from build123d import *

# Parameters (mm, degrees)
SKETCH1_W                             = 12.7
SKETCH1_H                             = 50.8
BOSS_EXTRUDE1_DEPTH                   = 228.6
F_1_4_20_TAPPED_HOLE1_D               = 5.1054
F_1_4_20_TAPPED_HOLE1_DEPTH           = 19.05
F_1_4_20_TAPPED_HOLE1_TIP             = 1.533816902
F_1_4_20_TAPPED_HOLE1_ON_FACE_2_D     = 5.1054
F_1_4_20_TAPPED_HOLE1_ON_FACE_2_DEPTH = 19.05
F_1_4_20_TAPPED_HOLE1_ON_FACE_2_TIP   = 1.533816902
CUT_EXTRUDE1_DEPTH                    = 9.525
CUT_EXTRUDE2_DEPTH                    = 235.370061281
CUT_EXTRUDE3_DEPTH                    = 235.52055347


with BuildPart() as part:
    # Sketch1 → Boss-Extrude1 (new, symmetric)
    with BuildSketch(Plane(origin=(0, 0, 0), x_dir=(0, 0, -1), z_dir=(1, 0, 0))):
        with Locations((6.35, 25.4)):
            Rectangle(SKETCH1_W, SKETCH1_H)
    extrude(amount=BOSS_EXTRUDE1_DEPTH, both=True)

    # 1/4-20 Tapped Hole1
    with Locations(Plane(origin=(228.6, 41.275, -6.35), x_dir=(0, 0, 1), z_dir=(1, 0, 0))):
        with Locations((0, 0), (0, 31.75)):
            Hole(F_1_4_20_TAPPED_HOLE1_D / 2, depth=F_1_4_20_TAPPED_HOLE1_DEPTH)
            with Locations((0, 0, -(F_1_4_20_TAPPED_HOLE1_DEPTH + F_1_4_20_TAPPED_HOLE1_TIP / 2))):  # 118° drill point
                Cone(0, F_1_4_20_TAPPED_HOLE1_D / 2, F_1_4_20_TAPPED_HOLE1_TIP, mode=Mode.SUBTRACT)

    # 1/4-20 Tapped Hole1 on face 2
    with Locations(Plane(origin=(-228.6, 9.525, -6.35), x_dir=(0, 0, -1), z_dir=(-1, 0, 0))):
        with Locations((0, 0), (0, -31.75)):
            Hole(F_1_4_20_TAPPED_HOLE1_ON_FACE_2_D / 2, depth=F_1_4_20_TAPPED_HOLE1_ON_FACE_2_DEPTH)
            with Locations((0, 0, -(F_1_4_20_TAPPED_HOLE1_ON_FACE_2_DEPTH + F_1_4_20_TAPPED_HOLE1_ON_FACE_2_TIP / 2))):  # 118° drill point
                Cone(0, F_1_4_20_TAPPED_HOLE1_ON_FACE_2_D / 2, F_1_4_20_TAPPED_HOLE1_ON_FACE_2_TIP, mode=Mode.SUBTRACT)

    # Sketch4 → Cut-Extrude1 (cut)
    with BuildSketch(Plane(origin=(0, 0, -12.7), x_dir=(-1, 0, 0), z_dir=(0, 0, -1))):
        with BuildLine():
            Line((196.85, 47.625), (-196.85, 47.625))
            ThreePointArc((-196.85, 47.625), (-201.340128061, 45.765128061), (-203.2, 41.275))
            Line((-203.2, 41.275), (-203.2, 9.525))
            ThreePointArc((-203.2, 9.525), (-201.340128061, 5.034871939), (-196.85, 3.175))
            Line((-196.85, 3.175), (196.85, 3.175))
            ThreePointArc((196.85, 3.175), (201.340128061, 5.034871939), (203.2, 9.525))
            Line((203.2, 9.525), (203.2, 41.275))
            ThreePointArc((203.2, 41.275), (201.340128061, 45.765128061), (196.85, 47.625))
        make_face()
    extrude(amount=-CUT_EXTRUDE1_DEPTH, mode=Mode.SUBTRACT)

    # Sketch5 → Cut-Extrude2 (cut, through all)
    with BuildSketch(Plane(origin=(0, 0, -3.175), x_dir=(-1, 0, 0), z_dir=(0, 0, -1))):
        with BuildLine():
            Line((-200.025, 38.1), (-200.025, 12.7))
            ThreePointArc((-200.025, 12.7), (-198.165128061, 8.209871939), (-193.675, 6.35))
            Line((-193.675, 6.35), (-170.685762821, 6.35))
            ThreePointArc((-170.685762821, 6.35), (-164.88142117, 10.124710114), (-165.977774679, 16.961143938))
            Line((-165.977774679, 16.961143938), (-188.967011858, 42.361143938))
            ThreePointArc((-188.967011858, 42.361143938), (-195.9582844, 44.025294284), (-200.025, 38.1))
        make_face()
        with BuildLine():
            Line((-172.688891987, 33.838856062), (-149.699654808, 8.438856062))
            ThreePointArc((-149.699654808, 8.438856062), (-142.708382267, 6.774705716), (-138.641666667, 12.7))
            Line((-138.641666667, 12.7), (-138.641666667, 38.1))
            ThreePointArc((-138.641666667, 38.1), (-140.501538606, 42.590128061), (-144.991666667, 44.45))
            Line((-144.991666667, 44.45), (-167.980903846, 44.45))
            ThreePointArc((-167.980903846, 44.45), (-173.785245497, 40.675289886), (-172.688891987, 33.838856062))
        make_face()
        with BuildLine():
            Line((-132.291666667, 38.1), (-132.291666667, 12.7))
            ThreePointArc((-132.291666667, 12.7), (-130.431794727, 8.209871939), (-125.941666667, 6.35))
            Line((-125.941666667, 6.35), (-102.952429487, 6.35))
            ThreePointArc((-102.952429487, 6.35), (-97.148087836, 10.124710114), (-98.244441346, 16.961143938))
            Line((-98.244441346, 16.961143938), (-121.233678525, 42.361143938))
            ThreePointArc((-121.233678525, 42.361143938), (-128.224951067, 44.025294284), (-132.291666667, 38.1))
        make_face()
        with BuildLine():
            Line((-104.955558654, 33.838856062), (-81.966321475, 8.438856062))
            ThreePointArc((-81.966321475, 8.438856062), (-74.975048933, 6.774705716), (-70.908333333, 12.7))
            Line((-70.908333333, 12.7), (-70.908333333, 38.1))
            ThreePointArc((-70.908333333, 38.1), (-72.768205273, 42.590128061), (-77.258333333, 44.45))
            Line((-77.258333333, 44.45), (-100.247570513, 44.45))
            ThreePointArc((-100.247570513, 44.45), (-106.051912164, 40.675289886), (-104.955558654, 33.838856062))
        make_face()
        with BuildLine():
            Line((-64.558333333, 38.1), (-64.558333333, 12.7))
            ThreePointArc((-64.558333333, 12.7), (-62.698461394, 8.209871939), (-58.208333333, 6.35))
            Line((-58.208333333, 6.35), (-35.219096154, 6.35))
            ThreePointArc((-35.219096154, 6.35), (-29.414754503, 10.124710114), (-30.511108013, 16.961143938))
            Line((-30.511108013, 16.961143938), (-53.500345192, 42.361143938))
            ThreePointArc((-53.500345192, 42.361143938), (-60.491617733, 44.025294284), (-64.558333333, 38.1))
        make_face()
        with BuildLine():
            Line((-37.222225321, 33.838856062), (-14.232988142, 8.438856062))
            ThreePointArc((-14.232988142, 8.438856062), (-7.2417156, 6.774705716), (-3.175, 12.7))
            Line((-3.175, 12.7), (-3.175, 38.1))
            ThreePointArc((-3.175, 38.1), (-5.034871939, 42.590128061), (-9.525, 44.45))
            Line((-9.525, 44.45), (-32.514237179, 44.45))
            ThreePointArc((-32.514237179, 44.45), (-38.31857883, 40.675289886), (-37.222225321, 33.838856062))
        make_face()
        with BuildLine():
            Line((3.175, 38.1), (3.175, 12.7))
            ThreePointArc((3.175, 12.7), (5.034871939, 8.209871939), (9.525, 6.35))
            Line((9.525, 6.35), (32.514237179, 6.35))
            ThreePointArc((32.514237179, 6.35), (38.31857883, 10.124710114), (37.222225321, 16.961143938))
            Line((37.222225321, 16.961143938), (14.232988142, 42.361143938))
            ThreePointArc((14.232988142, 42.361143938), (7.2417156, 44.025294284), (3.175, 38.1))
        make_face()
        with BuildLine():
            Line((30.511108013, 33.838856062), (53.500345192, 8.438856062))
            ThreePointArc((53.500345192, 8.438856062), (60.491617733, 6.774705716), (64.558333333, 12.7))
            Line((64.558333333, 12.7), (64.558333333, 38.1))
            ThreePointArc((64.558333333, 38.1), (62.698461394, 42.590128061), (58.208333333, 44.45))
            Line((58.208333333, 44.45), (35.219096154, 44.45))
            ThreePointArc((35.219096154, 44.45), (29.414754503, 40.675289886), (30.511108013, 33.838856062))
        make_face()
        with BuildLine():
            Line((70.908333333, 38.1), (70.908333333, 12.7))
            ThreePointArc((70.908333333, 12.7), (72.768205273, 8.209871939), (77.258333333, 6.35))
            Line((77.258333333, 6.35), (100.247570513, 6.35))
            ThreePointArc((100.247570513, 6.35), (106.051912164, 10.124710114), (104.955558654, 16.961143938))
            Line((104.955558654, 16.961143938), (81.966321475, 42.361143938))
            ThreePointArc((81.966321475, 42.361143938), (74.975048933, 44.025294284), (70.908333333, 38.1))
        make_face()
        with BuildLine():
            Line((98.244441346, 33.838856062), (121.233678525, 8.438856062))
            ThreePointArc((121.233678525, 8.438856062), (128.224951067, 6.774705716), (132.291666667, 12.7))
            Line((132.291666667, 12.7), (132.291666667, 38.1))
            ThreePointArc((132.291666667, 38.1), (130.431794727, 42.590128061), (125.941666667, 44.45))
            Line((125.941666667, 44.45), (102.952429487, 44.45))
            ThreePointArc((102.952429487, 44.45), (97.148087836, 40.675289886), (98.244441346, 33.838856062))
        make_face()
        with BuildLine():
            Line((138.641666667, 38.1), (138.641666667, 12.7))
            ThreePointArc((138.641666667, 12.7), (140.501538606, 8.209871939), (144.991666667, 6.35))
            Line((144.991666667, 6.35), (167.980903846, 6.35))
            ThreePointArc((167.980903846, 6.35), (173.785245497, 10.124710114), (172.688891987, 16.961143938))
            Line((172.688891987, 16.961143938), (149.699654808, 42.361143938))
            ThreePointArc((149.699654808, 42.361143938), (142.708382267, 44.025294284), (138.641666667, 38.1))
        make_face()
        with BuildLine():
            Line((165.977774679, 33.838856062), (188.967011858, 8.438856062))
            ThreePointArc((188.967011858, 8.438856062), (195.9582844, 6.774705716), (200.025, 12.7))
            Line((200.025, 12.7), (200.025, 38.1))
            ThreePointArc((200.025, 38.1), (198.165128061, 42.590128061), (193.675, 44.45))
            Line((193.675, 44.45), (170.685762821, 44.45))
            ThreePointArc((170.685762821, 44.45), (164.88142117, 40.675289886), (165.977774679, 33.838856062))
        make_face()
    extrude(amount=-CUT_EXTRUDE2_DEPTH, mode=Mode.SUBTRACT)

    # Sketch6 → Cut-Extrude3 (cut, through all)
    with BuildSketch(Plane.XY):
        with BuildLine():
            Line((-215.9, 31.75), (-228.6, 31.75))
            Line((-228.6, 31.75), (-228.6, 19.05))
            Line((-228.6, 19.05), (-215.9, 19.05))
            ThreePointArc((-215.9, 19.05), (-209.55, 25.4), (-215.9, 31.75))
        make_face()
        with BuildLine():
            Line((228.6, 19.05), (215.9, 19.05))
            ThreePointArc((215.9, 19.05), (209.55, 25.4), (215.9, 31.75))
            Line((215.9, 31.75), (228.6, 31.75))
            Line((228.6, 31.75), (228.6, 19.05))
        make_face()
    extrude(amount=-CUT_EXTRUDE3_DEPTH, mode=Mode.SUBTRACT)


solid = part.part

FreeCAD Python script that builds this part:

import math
import FreeCAD as App
import Part
import Sketcher

V = App.Vector
Q = App.Units.Quantity


def add_polygon(sketch, points):
    """Adds a closed chain of lines whose ends are joined by coincident constraints."""
    first, n = sketch.GeometryCount, len(points)
    for a, b in zip(points, points[1:] + points[:1]):
        sketch.addGeometry(Part.LineSegment(App.Vector(*a, 0), App.Vector(*b, 0)), False)
    for i in range(n):
        sketch.addConstraint(Sketcher.Constraint("Coincident", first + i, 2, first + (i + 1) % n, 1))

doc = App.newDocument("Part")
params = doc.addObject("Spreadsheet::Sheet", "Params")
for row, (alias, value) in enumerate([
    ("sketch1_width", "2 in"),
    ("sketch1_height", "0.5 in"),
    ("pad1_length", "18 in"),
    ("sketch2_diameter", "0.201 in"),
    ("hole_diameter", "0.201 in"),
    ("hole_depth", "0.75 in"),
    ("sketch3_diameter", "0.201 in"),
    ("hole2_diameter", "0.201 in"),
    ("hole2_depth", "0.75 in"),
    ("sketch4_radius", "0.25 in"),
    ("sketch4_width", "15.5 in"),
    ("sketch4_height", "1.25 in"),
    ("pocket1_length", "0.375 in"),
    ("sketch5_height", "1 in"),
    ("sketch5_radius", "0.25 in"),
    ("sketch6_radius", "0.25 in"),
], start=1):
    params.set(f"A{row}", alias)
    params.set(f"B{row}", "=" + value)
    params.setAlias(f"B{row}", alias)

body = doc.addObject("PartDesign::Body", "Body")

sketch1 = body.newObject("Sketcher::SketchObject", "Sketch")
sketch1.AttachmentSupport = (doc.getObject("YZ_Plane"), [""])
sketch1.MapMode = "FlatFace"
add_polygon(sketch1, [(50.8, 0), (0, 0), (0, -12.7), (50.8, -12.7)])
sketch1.addConstraint([
    Sketcher.Constraint("Horizontal", 0),
    Sketcher.Constraint("Vertical", 1),
    Sketcher.Constraint("Horizontal", 2),
    Sketcher.Constraint("Vertical", 3),
    Sketcher.Constraint("Coincident", 0, 2, -1, 1),
    Sketcher.Constraint("DistanceX", 0, 2, 0, 1, Q("2 in")),
    Sketcher.Constraint("DistanceY", 1, 2, 1, 1, Q("0.5 in")),
])
sketch1.setExpression("Constraints[9]", "Params.sketch1_width")
sketch1.setExpression("Constraints[10]", "Params.sketch1_height")
pad1 = body.newObject("PartDesign::Pad", "Pad")
pad1.Profile = sketch1
pad1.setExpression("Length", "Params.pad1_length")
pad1.Midplane = True

sketch2 = body.newObject("Sketcher::SketchObject", "Sketch001")
sketch2.AttachmentSupport = (doc.getObject("YZ_Plane"), [""])
sketch2.MapMode = "FlatFace"
sketch2.AttachmentOffset = App.Placement(V(0, 0, 9 * 25.4), App.Rotation())
sketch2.addGeometry([
    Part.Circle(V(41.275, -6.35, 0), V(0, 0, 1), 2.5527),
    Part.Circle(V(9.525, -6.35, 0), V(0, 0, 1), 2.5527),
], False)
sketch2.addConstraint([
    Sketcher.Constraint("Equal", 0, 1),
    Sketcher.Constraint("Horizontal", 0, 3, 1, 3),
    Sketcher.Constraint("Diameter", 0, Q("0.201 in")),
    Sketcher.Constraint("DistanceY", 0, 3, -1, 1, Q("0.25 in")),
    Sketcher.Constraint("DistanceX", 1, 3, 0, 3, Q("1.25 in")),
    Sketcher.Constraint("DistanceX", -1, 1, 0, 3, Q("1.625 in")),
])
sketch2.setExpression("Constraints[2]", "Params.sketch2_diameter")
doc.recompute()
hole = body.newObject("PartDesign::Hole", "Hole")
hole.Profile = sketch2
hole.ThreadType = "None"
hole.setExpression("Diameter", "Params.hole_diameter")
hole.DepthType = "Dimension"
hole.setExpression("Depth", "Params.hole_depth")
hole.DrillPoint = "Angled"
hole.DrillPointAngle = 118

sketch3 = body.newObject("Sketcher::SketchObject", "Sketch002")
sketch3.AttachmentSupport = (doc.getObject("YZ_Plane"), [""])
sketch3.MapMode = "FlatFace"
sketch3.AttachmentOffset = App.Placement(V(0, 0, -9 * 25.4), App.Rotation())
sketch3.addGeometry([
    Part.Circle(V(9.525, -6.35, 0), V(0, 0, 1), 2.5527),
    Part.Circle(V(41.275, -6.35, 0), V(0, 0, 1), 2.5527),
], False)
sketch3.addConstraint([
    Sketcher.Constraint("Equal", 0, 1),
    Sketcher.Constraint("Horizontal", 0, 3, 1, 3),
    Sketcher.Constraint("Diameter", 0, Q("0.201 in")),
    Sketcher.Constraint("DistanceY", 0, 3, -1, 1, Q("0.25 in")),
    Sketcher.Constraint("DistanceX", 0, 3, 1, 3, Q("1.25 in")),
    Sketcher.Constraint("DistanceX", -1, 1, 0, 3, Q("0.375 in")),
])
sketch3.setExpression("Constraints[2]", "Params.sketch3_diameter")
doc.recompute()
hole2 = body.newObject("PartDesign::Hole", "Hole001")
hole2.Profile = sketch3
hole2.ThreadType = "None"
hole2.setExpression("Diameter", "Params.hole2_diameter")
hole2.DepthType = "Dimension"
hole2.setExpression("Depth", "Params.hole2_depth")
hole2.DrillPoint = "Angled"
hole2.DrillPointAngle = 118
hole2.Reversed = True

sketch4 = body.newObject("Sketcher::SketchObject", "Sketch003")
sketch4.AttachmentSupport = (doc.getObject("XY_Plane"), [""])
sketch4.MapMode = "FlatFace"
sketch4.AttachmentOffset = App.Placement(V(0, 0, -0.5 * 25.4), App.Rotation())
sketch4.addGeometry([
    Part.LineSegment(V(-196.85, 47.625, 0), V(196.85, 47.625, 0)),
    Part.ArcOfCircle(Part.Circle(V(196.85, 41.275, 0), V(0, 0, 1), 6.35), math.radians(0), math.radians(90)),
    Part.LineSegment(V(203.2, 41.275, 0), V(203.2, 9.525, 0)),
    Part.ArcOfCircle(Part.Circle(V(196.85, 9.525, 0), V(0, 0, 1), 6.35), math.radians(-90), math.radians(0)),
    Part.LineSegment(V(196.85, 3.175, 0), V(-196.85, 3.175, 0)),
    Part.ArcOfCircle(Part.Circle(V(-196.85, 9.525, 0), V(0, 0, 1), 6.35), math.radians(180), math.radians(270)),
    Part.LineSegment(V(-203.2, 9.525, 0), V(-203.2, 41.275, 0)),
    Part.ArcOfCircle(Part.Circle(V(-196.85, 41.275, 0), V(0, 0, 1), 6.35), math.radians(90), math.radians(180)),
], False)
sketch4.addConstraint([
    Sketcher.Constraint("Tangent", 0, 2, 1, 2),
    Sketcher.Constraint("Tangent", 1, 1, 2, 1),
    Sketcher.Constraint("Tangent", 2, 2, 3, 2),
    Sketcher.Constraint("Tangent", 3, 1, 4, 1),
    Sketcher.Constraint("Tangent", 4, 2, 5, 2),
    Sketcher.Constraint("Tangent", 5, 1, 6, 1),
    Sketcher.Constraint("Tangent", 6, 2, 7, 2),
    Sketcher.Constraint("Tangent", 7, 1, 0, 1),
    Sketcher.Constraint("Horizontal", 0),
    Sketcher.Constraint("Vertical", 2),
    Sketcher.Constraint("Horizontal", 4),
    Sketcher.Constraint("Vertical", 6),
    Sketcher.Constraint("Equal", 1, 3),
    Sketcher.Constraint("Equal", 3, 5),
    Sketcher.Constraint("Equal", 5, 7),
    Sketcher.Constraint("Radius", 1, Q("0.25 in")),
    Sketcher.Constraint("DistanceX", 0, 1, 0, 2, Q("15.5 in")),
    Sketcher.Constraint("DistanceX", -1, 1, 1, 1, Q("8 in")),
    Sketcher.Constraint("DistanceY", 2, 2, 2, 1, Q("1.25 in")),
    Sketcher.Constraint("DistanceY", -1, 1, 1, 3, Q("1.625 in")),
])
sketch4.setExpression("Constraints[15]", "Params.sketch4_radius")
sketch4.setExpression("Constraints[16]", "Params.sketch4_width")
sketch4.setExpression("Constraints[18]", "Params.sketch4_height")
pocket1 = body.newObject("PartDesign::Pocket", "Pocket")
pocket1.Profile = sketch4
pocket1.setExpression("Length", "Params.pocket1_length")
pocket1.Reversed = True

sketch5 = body.newObject("Sketcher::SketchObject", "Sketch004")
sketch5.AttachmentSupport = (doc.getObject("XY_Plane"), [""])
sketch5.MapMode = "FlatFace"
sketch5.AttachmentOffset = App.Placement(V(0, 0, -0.125 * 25.4), App.Rotation())
sketch5.addGeometry([
    Part.LineSegment(V(200.025, 38.1, 0), V(200.025, 12.7, 0)),
    Part.ArcOfCircle(Part.Circle(V(193.675, 12.7, 0), V(0, 0, 1), 6.35), math.radians(-90), math.radians(0)),
    Part.LineSegment(V(193.675, 6.35, 0), V(170.685763, 6.35, 0)),
    Part.ArcOfCircle(Part.Circle(V(170.685763, 12.7, 0), V(0, 0, 1), 6.35), math.radians(137.852131), math.radians(270)),
    Part.LineSegment(V(165.977775, 16.961144, 0), V(188.967012, 42.361144, 0)),
    Part.ArcOfCircle(Part.Circle(V(193.675, 38.1, 0), V(0, 0, 1), 6.35), math.radians(0), math.radians(137.852131)),
    Part.LineSegment(V(172.688892, 33.838856, 0), V(149.699655, 8.438856, 0)),
    Part.ArcOfCircle(Part.Circle(V(144.991667, 12.7, 0), V(0, 0, 1), 6.35), math.radians(180), math.radians(317.852131)),
    Part.LineSegment(V(138.641667, 12.7, 0), V(138.641667, 38.1, 0)),
    Part.ArcOfCircle(Part.Circle(V(144.991667, 38.1, 0), V(0, 0, 1), 6.35), math.radians(90), math.radians(180)),
    Part.LineSegment(V(144.991667, 44.45, 0), V(167.980904, 44.45, 0)),
    Part.ArcOfCircle(Part.Circle(V(167.980904, 38.1, 0), V(0, 0, 1), 6.35), math.radians(-42.147869), math.radians(90)),
    Part.LineSegment(V(132.291667, 38.1, 0), V(132.291667, 12.7, 0)),
    Part.ArcOfCircle(Part.Circle(V(125.941667, 12.7, 0), V(0, 0, 1), 6.35), math.radians(-90), math.radians(0)),
    Part.LineSegment(V(125.941667, 6.35, 0), V(102.952429, 6.35, 0)),
    Part.ArcOfCircle(Part.Circle(V(102.952429, 12.7, 0), V(0, 0, 1), 6.35), math.radians(137.852131), math.radians(270)),
    Part.LineSegment(V(98.244441, 16.961144, 0), V(121.233679, 42.361144, 0)),
    Part.ArcOfCircle(Part.Circle(V(125.941667, 38.1, 0), V(0, 0, 1), 6.35), math.radians(0), math.radians(137.852131)),
    Part.LineSegment(V(104.955559, 33.838856, 0), V(81.966321, 8.438856, 0)),
    Part.ArcOfCircle(Part.Circle(V(77.258333, 12.7, 0), V(0, 0, 1), 6.35), math.radians(180), math.radians(317.852131)),
    Part.LineSegment(V(70.908333, 12.7, 0), V(70.908333, 38.1, 0)),
    Part.ArcOfCircle(Part.Circle(V(77.258333, 38.1, 0), V(0, 0, 1), 6.35), math.radians(90), math.radians(180)),
    Part.LineSegment(V(77.258333, 44.45, 0), V(100.247571, 44.45, 0)),
    Part.ArcOfCircle(Part.Circle(V(100.247571, 38.1, 0), V(0, 0, 1), 6.35), math.radians(-42.147869), math.radians(90)),
    Part.LineSegment(V(64.558333, 38.1, 0), V(64.558333, 12.7, 0)),
    Part.ArcOfCircle(Part.Circle(V(58.208333, 12.7, 0), V(0, 0, 1), 6.35), math.radians(-90), math.radians(0)),
    Part.LineSegment(V(58.208333, 6.35, 0), V(35.219096, 6.35, 0)),
    Part.ArcOfCircle(Part.Circle(V(35.219096, 12.7, 0), V(0, 0, 1), 6.35), math.radians(137.852131), math.radians(270)),
    Part.LineSegment(V(30.511108, 16.961144, 0), V(53.500345, 42.361144, 0)),
    Part.ArcOfCircle(Part.Circle(V(58.208333, 38.1, 0), V(0, 0, 1), 6.35), math.radians(0), math.radians(137.852131)),
    Part.LineSegment(V(37.222225, 33.838856, 0), V(14.232988, 8.438856, 0)),
    Part.ArcOfCircle(Part.Circle(V(9.525, 12.7, 0), V(0, 0, 1), 6.35), math.radians(180), math.radians(317.852131)),
    Part.LineSegment(V(3.175, 12.7, 0), V(3.175, 38.1, 0)),
    Part.ArcOfCircle(Part.Circle(V(9.525, 38.1, 0), V(0, 0, 1), 6.35), math.radians(90), math.radians(180)),
    Part.LineSegment(V(9.525, 44.45, 0), V(32.514237, 44.45, 0)),
    Part.ArcOfCircle(Part.Circle(V(32.514237, 38.1, 0), V(0, 0, 1), 6.35), math.radians(-42.147869), math.radians(90)),
    Part.LineSegment(V(-3.175, 38.1, 0), V(-3.175, 12.7, 0)),
    Part.ArcOfCircle(Part.Circle(V(-9.525, 12.7, 0), V(0, 0, 1), 6.35), math.radians(-90), math.radians(0)),
    Part.LineSegment(V(-9.525, 6.35, 0), V(-32.514237, 6.35, 0)),
    Part.ArcOfCircle(Part.Circle(V(-32.514237, 12.7, 0), V(0, 0, 1), 6.35), math.radians(137.852131), math.radians(270)),
    Part.LineSegment(V(-37.222225, 16.961144, 0), V(-14.232988, 42.361144, 0)),
    Part.ArcOfCircle(Part.Circle(V(-9.525, 38.1, 0), V(0, 0, 1), 6.35), math.radians(0), math.radians(137.852131)),
    Part.LineSegment(V(-30.511108, 33.838856, 0), V(-53.500345, 8.438856, 0)),
    Part.ArcOfCircle(Part.Circle(V(-58.208333, 12.7, 0), V(0, 0, 1), 6.35), math.radians(180), math.radians(317.852131)),
    Part.LineSegment(V(-64.558333, 12.7, 0), V(-64.558333, 38.1, 0)),
    Part.ArcOfCircle(Part.Circle(V(-58.208333, 38.1, 0), V(0, 0, 1), 6.35), math.radians(90), math.radians(180)),
    Part.LineSegment(V(-58.208333, 44.45, 0), V(-35.219096, 44.45, 0)),
    Part.ArcOfCircle(Part.Circle(V(-35.219096, 38.1, 0), V(0, 0, 1), 6.35), math.radians(-42.147869), math.radians(90)),
    Part.LineSegment(V(-70.908333, 38.1, 0), V(-70.908333, 12.7, 0)),
    Part.ArcOfCircle(Part.Circle(V(-77.258333, 12.7, 0), V(0, 0, 1), 6.35), math.radians(-90), math.radians(0)),
    Part.LineSegment(V(-77.258333, 6.35, 0), V(-100.247571, 6.35, 0)),
    Part.ArcOfCircle(Part.Circle(V(-100.247571, 12.7, 0), V(0, 0, 1), 6.35), math.radians(137.852131), math.radians(270)),
    Part.LineSegment(V(-104.955559, 16.961144, 0), V(-81.966321, 42.361144, 0)),
    Part.ArcOfCircle(Part.Circle(V(-77.258333, 38.1, 0), V(0, 0, 1), 6.35), math.radians(0), math.radians(137.852131)),
    Part.LineSegment(V(-98.244441, 33.838856, 0), V(-121.233679, 8.438856, 0)),
    Part.ArcOfCircle(Part.Circle(V(-125.941667, 12.7, 0), V(0, 0, 1), 6.35), math.radians(180), math.radians(317.852131)),
    Part.LineSegment(V(-132.291667, 12.7, 0), V(-132.291667, 38.1, 0)),
    Part.ArcOfCircle(Part.Circle(V(-125.941667, 38.1, 0), V(0, 0, 1), 6.35), math.radians(90), math.radians(180)),
    Part.LineSegment(V(-125.941667, 44.45, 0), V(-102.952429, 44.45, 0)),
    Part.ArcOfCircle(Part.Circle(V(-102.952429, 38.1, 0), V(0, 0, 1), 6.35), math.radians(-42.147869), math.radians(90)),
    Part.LineSegment(V(-138.641667, 38.1, 0), V(-138.641667, 12.7, 0)),
    Part.ArcOfCircle(Part.Circle(V(-144.991667, 12.7, 0), V(0, 0, 1), 6.35), math.radians(-90), math.radians(0)),
    Part.LineSegment(V(-144.991667, 6.35, 0), V(-167.980904, 6.35, 0)),
    Part.ArcOfCircle(Part.Circle(V(-167.980904, 12.7, 0), V(0, 0, 1), 6.35), math.radians(137.852131), math.radians(270)),
    Part.LineSegment(V(-172.688892, 16.961144, 0), V(-149.699655, 42.361144, 0)),
    Part.ArcOfCircle(Part.Circle(V(-144.991667, 38.1, 0), V(0, 0, 1), 6.35), math.radians(0), math.radians(137.852131)),
    Part.LineSegment(V(-165.977775, 33.838856, 0), V(-188.967012, 8.438856, 0)),
    Part.ArcOfCircle(Part.Circle(V(-193.675, 12.7, 0), V(0, 0, 1), 6.35), math.radians(180), math.radians(317.852131)),
    Part.LineSegment(V(-200.025, 12.7, 0), V(-200.025, 38.1, 0)),
    Part.ArcOfCircle(Part.Circle(V(-193.675, 38.1, 0), V(0, 0, 1), 6.35), math.radians(90), math.radians(180)),
    Part.LineSegment(V(-193.675, 44.45, 0), V(-170.685763, 44.45, 0)),
    Part.ArcOfCircle(Part.Circle(V(-170.685763, 38.1, 0), V(0, 0, 1), 6.35), math.radians(-42.147869), math.radians(90)),
], False)
sketch5.addConstraint([
    Sketcher.Constraint("Tangent", 0, 2, 1, 2),
    Sketcher.Constraint("Tangent", 1, 1, 2, 1),
    Sketcher.Constraint("Tangent", 2, 2, 3, 2),
    Sketcher.Constraint("Tangent", 3, 1, 4, 1),
    Sketcher.Constraint("Tangent", 4, 2, 5, 2),
    Sketcher.Constraint("Tangent", 5, 1, 0, 1),
    Sketcher.Constraint("Tangent", 6, 2, 7, 2),
    Sketcher.Constraint("Tangent", 7, 1, 8, 1),
    Sketcher.Constraint("Tangent", 8, 2, 9, 2),
    Sketcher.Constraint("Tangent", 9, 1, 10, 1),
    Sketcher.Constraint("Tangent", 10, 2, 11, 2),
    Sketcher.Constraint("Tangent", 11, 1, 6, 1),
    Sketcher.Constraint("Tangent", 12, 2, 13, 2),
    Sketcher.Constraint("Tangent", 13, 1, 14, 1),
    Sketcher.Constraint("Tangent", 14, 2, 15, 2),
    Sketcher.Constraint("Tangent", 15, 1, 16, 1),
    Sketcher.Constraint("Tangent", 16, 2, 17, 2),
    Sketcher.Constraint("Tangent", 17, 1, 12, 1),
    Sketcher.Constraint("Tangent", 18, 2, 19, 2),
    Sketcher.Constraint("Tangent", 19, 1, 20, 1),
    Sketcher.Constraint("Tangent", 20, 2, 21, 2),
    Sketcher.Constraint("Tangent", 21, 1, 22, 1),
    Sketcher.Constraint("Tangent", 22, 2, 23, 2),
    Sketcher.Constraint("Tangent", 23, 1, 18, 1),
    Sketcher.Constraint("Tangent", 24, 2, 25, 2),
    Sketcher.Constraint("Tangent", 25, 1, 26, 1),
    Sketcher.Constraint("Tangent", 26, 2, 27, 2),
    Sketcher.Constraint("Tangent", 27, 1, 28, 1),
    Sketcher.Constraint("Tangent", 28, 2, 29, 2),
    Sketcher.Constraint("Tangent", 29, 1, 24, 1),
    Sketcher.Constraint("Tangent", 30, 2, 31, 2),
    Sketcher.Constraint("Tangent", 31, 1, 32, 1),
    Sketcher.Constraint("Tangent", 32, 2, 33, 2),
    Sketcher.Constraint("Tangent", 33, 1, 34, 1),
    Sketcher.Constraint("Tangent", 34, 2, 35, 2),
    Sketcher.Constraint("Tangent", 35, 1, 30, 1),
    Sketcher.Constraint("Tangent", 36, 2, 37, 2),
    Sketcher.Constraint("Tangent", 37, 1, 38, 1),
    Sketcher.Constraint("Tangent", 38, 2, 39, 2),
    Sketcher.Constraint("Tangent", 39, 1, 40, 1),
    Sketcher.Constraint("Tangent", 40, 2, 41, 2),
    Sketcher.Constraint("Tangent", 41, 1, 36, 1),
    Sketcher.Constraint("Tangent", 42, 2, 43, 2),
    Sketcher.Constraint("Tangent", 43, 1, 44, 1),
    Sketcher.Constraint("Tangent", 44, 2, 45, 2),
    Sketcher.Constraint("Tangent", 45, 1, 46, 1),
    Sketcher.Constraint("Tangent", 46, 2, 47, 2),
    Sketcher.Constraint("Tangent", 47, 1, 42, 1),
    Sketcher.Constraint("Tangent", 48, 2, 49, 2),
    Sketcher.Constraint("Tangent", 49, 1, 50, 1),
    Sketcher.Constraint("Tangent", 50, 2, 51, 2),
    Sketcher.Constraint("Tangent", 51, 1, 52, 1),
    Sketcher.Constraint("Tangent", 52, 2, 53, 2),
    Sketcher.Constraint("Tangent", 53, 1, 48, 1),
    Sketcher.Constraint("Tangent", 54, 2, 55, 2),
    Sketcher.Constraint("Tangent", 55, 1, 56, 1),
    Sketcher.Constraint("Tangent", 56, 2, 57, 2),
    Sketcher.Constraint("Tangent", 57, 1, 58, 1),
    Sketcher.Constraint("Tangent", 58, 2, 59, 2),
    Sketcher.Constraint("Tangent", 59, 1, 54, 1),
    Sketcher.Constraint("Tangent", 60, 2, 61, 2),
    Sketcher.Constraint("Tangent", 61, 1, 62, 1),
    Sketcher.Constraint("Tangent", 62, 2, 63, 2),
    Sketcher.Constraint("Tangent", 63, 1, 64, 1),
    Sketcher.Constraint("Tangent", 64, 2, 65, 2),
    Sketcher.Constraint("Tangent", 65, 1, 60, 1),
    Sketcher.Constraint("Tangent", 66, 2, 67, 2),
    Sketcher.Constraint("Tangent", 67, 1, 68, 1),
    Sketcher.Constraint("Tangent", 68, 2, 69, 2),
    Sketcher.Constraint("Tangent", 69, 1, 70, 1),
    Sketcher.Constraint("Tangent", 70, 2, 71, 2),
    Sketcher.Constraint("Tangent", 71, 1, 66, 1),
    Sketcher.Constraint("Vertical", 0),
    Sketcher.Constraint("Horizontal", 2),
    Sketcher.Constraint("Vertical", 8),
    Sketcher.Constraint("Horizontal", 10),
    Sketcher.Constraint("Vertical", 12),
    Sketcher.Constraint("Horizontal", 14),
    Sketcher.Constraint("Vertical", 20),
    Sketcher.Constraint("Horizontal", 22),
    Sketcher.Constraint("Vertical", 24),
    Sketcher.Constraint("Horizontal", 26),
    Sketcher.Constraint("Vertical", 32),
    Sketcher.Constraint("Horizontal", 34),
    Sketcher.Constraint("Vertical", 36),
    Sketcher.Constraint("Horizontal", 38),
    Sketcher.Constraint("Vertical", 44),
    Sketcher.Constraint("Horizontal", 46),
    Sketcher.Constraint("Vertical", 48),
    Sketcher.Constraint("Horizontal", 50),
    Sketcher.Constraint("Vertical", 56),
    Sketcher.Constraint("Horizontal", 58),
    Sketcher.Constraint("Vertical", 60),
    Sketcher.Constraint("Horizontal", 62),
    Sketcher.Constraint("Vertical", 68),
    Sketcher.Constraint("Horizontal", 70),
    Sketcher.Constraint("Equal", 1, 3),
    Sketcher.Constraint("Equal", 3, 5),
    Sketcher.Constraint("Equal", 5, 7),
    Sketcher.Constraint("Equal", 7, 9),
    Sketcher.Constraint("Equal", 9, 11),
    Sketcher.Constraint("Equal", 11, 13),
    Sketcher.Constraint("Equal", 13, 15),
    Sketcher.Constraint("Equal", 15, 17),
    Sketcher.Constraint("Equal", 17, 19),
    Sketcher.Constraint("Equal", 19, 21),
    Sketcher.Constraint("Equal", 21, 23),
    Sketcher.Constraint("Equal", 23, 25),
    Sketcher.Constraint("Equal", 25, 27),
    Sketcher.Constraint("Equal", 27, 29),
    Sketcher.Constraint("Equal", 29, 31),
    Sketcher.Constraint("Equal", 31, 33),
    Sketcher.Constraint("Equal", 33, 35),
    Sketcher.Constraint("Equal", 35, 37),
    Sketcher.Constraint("Equal", 37, 39),
    Sketcher.Constraint("Equal", 39, 41),
    Sketcher.Constraint("Equal", 41, 43),
    Sketcher.Constraint("Equal", 43, 45),
    Sketcher.Constraint("Equal", 45, 47),
    Sketcher.Constraint("Equal", 47, 49),
    Sketcher.Constraint("Equal", 49, 51),
    Sketcher.Constraint("Equal", 51, 53),
    Sketcher.Constraint("Equal", 53, 55),
    Sketcher.Constraint("Equal", 55, 57),
    Sketcher.Constraint("Equal", 57, 59),
    Sketcher.Constraint("Equal", 59, 61),
    Sketcher.Constraint("Equal", 61, 63),
    Sketcher.Constraint("Equal", 63, 65),
    Sketcher.Constraint("Equal", 65, 67),
    Sketcher.Constraint("Equal", 67, 69),
    Sketcher.Constraint("Equal", 69, 71),
    Sketcher.Constraint("Symmetric", 31, 3, 37, 3, -2),
    Sketcher.Constraint("Symmetric", 25, 3, 43, 3, -2),
    Sketcher.Constraint("Symmetric", 19, 3, 49, 3, -2),
    Sketcher.Constraint("Symmetric", 13, 3, 55, 3, -2),
    Sketcher.Constraint("Symmetric", 7, 3, 61, 3, -2),
    Sketcher.Constraint("Symmetric", 1, 3, 67, 3, -2),
    Sketcher.Constraint("Parallel", 4, 6),
    Sketcher.Constraint("Parallel", 6, 16),
    Sketcher.Constraint("Parallel", 16, 18),
    Sketcher.Constraint("Parallel", 18, 28),
    Sketcher.Constraint("Parallel", 28, 30),
    Sketcher.Constraint("Parallel", 30, 40),
    Sketcher.Constraint("Parallel", 40, 42),
    Sketcher.Constraint("Parallel", 42, 52),
    Sketcher.Constraint("Parallel", 52, 54),
    Sketcher.Constraint("Parallel", 54, 64),
    Sketcher.Constraint("Parallel", 64, 66),
    Sketcher.Constraint("Horizontal", 3, 3, 7, 3),
    Sketcher.Constraint("Horizontal", 5, 3, 9, 3),
    Sketcher.Constraint("Horizontal", 7, 3, 13, 3),
    Sketcher.Constraint("Horizontal", 11, 3, 17, 3),
    Sketcher.Constraint("Horizontal", 15, 3, 19, 3),
    Sketcher.Constraint("Horizontal", 17, 3, 21, 3),
    Sketcher.Constraint("Horizontal", 19, 3, 25, 3),
    Sketcher.Constraint("Horizontal", 23, 3, 29, 3),
    Sketcher.Constraint("Horizontal", 27, 3, 31, 3),
    Sketcher.Constraint("Horizontal", 29, 3, 33, 3),
    Sketcher.Constraint("Horizontal", 35, 3, 41, 3),
    Sketcher.Constraint("Horizontal", 41, 3, 45, 3),
    Sketcher.Constraint("Horizontal", 47, 3, 53, 3),
    Sketcher.Constraint("Horizontal", 53, 3, 57, 3),
    Sketcher.Constraint("Horizontal", 59, 3, 65, 3),
    Sketcher.Constraint("Horizontal", 65, 3, 69, 3),
    Sketcher.Constraint("DistanceY", 0, 2, 0, 1, Q("1 in")),
    Sketcher.Constraint("Radius", 1, Q("0.25 in")),
    Sketcher.Constraint("DistanceY", -1, 1, 1, 3, Q("0.5 in")),
    Sketcher.Constraint("DistanceX", -1, 1, 1, 3, Q("7.625 in")),
    Sketcher.Constraint("DistanceX", -1, 1, 31, 3, Q("0.375 in")),
    Sketcher.Constraint("DistanceX", 2, 2, 2, 1, Q("22.989237 mm")),
    Sketcher.Constraint("DistanceX", -1, 1, 15, 3, Q("102.952429 mm")),
    Sketcher.Constraint("DistanceX", -1, 1, 23, 3, Q("100.247571 mm")),
    Sketcher.Constraint("DistanceX", -1, 1, 11, 1, Q("172.688892 mm")),
    Sketcher.Constraint("DistanceX", -1, 1, 27, 1, Q("30.511108 mm")),
])
sketch5.setExpression("Constraints[164]", "Params.sketch5_height")
sketch5.setExpression("Constraints[165]", "Params.sketch5_radius")
pocket2 = body.newObject("PartDesign::Pocket", "Pocket001")
pocket2.Profile = sketch5
pocket2.Type = "ThroughAll"
pocket2.Reversed = True

sketch6 = body.newObject("Sketcher::SketchObject", "Sketch005")
sketch6.AttachmentSupport = (doc.getObject("XY_Plane"), [""])
sketch6.MapMode = "FlatFace"
sketch6.addGeometry([
    Part.LineSegment(V(-215.9, 31.75, 0), V(-228.6, 31.75, 0)),
    Part.LineSegment(V(-228.6, 31.75, 0), V(-228.6, 19.05, 0)),
    Part.LineSegment(V(-228.6, 19.05, 0), V(-215.9, 19.05, 0)),
    Part.ArcOfCircle(Part.Circle(V(-215.9, 25.4, 0), V(0, 0, 1), 6.35), math.radians(-90), math.radians(90)),
    Part.LineSegment(V(215.9, 19.05, 0), V(228.6, 19.05, 0)),
    Part.LineSegment(V(228.6, 19.05, 0), V(228.6, 31.75, 0)),
    Part.LineSegment(V(228.6, 31.75, 0), V(215.9, 31.75, 0)),
    Part.ArcOfCircle(Part.Circle(V(215.9, 25.4, 0), V(0, 0, 1), 6.35), math.radians(90), math.radians(270)),
], False)
sketch6.addConstraint([
    Sketcher.Constraint("Coincident", 0, 2, 1, 1),
    Sketcher.Constraint("Coincident", 1, 2, 2, 1),
    Sketcher.Constraint("Tangent", 2, 2, 3, 1),
    Sketcher.Constraint("Tangent", 3, 2, 0, 1),
    Sketcher.Constraint("Coincident", 4, 2, 5, 1),
    Sketcher.Constraint("Coincident", 5, 2, 6, 1),
    Sketcher.Constraint("Tangent", 6, 2, 7, 1),
    Sketcher.Constraint("Tangent", 7, 2, 4, 1),
    Sketcher.Constraint("Horizontal", 0),
    Sketcher.Constraint("Vertical", 1),
    Sketcher.Constraint("Horizontal", 2),
    Sketcher.Constraint("Horizontal", 4),
    Sketcher.Constraint("Vertical", 5),
    Sketcher.Constraint("Horizontal", 6),
    Sketcher.Constraint("Equal", 3, 7),
    Sketcher.Constraint("Symmetric", 3, 3, 7, 3, -2),
    Sketcher.Constraint("Equal", 2, 4),
    Sketcher.Constraint("Equal", 6, 1),
    Sketcher.Constraint("Radius", 3, Q("0.25 in")),
    Sketcher.Constraint("DistanceY", -1, 1, 3, 3, Q("1 in")),
    Sketcher.Constraint("DistanceX", 0, 2, -1, 1, Q("9 in")),
])
sketch6.setExpression("Constraints[18]", "Params.sketch6_radius")
pocket3 = body.newObject("PartDesign::Pocket", "Pocket002")
pocket3.Profile = sketch6
pocket3.Type = "ThroughAll"

doc.recompute()
